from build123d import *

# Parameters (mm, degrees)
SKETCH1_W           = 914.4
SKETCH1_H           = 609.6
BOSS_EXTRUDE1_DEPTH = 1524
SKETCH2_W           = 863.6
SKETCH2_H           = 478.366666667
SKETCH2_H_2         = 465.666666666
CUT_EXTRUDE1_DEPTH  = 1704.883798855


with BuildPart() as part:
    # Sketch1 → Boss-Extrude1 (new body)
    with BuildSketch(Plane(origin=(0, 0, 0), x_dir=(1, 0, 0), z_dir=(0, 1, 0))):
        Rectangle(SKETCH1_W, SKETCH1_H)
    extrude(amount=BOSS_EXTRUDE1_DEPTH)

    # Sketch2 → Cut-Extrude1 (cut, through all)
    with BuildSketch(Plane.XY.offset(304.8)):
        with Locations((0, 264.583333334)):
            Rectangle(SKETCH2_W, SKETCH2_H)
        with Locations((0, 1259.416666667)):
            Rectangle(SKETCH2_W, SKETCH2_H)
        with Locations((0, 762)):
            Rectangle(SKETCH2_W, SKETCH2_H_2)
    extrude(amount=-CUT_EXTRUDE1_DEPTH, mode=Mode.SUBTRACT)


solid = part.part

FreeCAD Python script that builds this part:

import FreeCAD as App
import Part
import Sketcher
Q = App.Units.Quantity

doc = App.newDocument("Part")
body = doc.addObject("PartDesign::Body", "Body")

# Sketch on XZ plane
sketch1 = body.newObject("Sketcher::SketchObject", "Sketch")
sketch1.AttachmentSupport = (doc.getObject("XZ_Plane"), [""])
sketch1.MapMode = "FlatFace"
sketch1.addGeometry([
    Part.LineSegment(App.Vector(-457, -305, 0), App.Vector(-457, 305, 0)),
    Part.LineSegment(App.Vector(-457, 305, 0), App.Vector(457, 305, 0)),
    Part.LineSegment(App.Vector(457, 305, 0), App.Vector(457, -305, 0)),
    Part.LineSegment(App.Vector(457, -305, 0), App.Vector(-457, -305, 0)),
], False)
sketch1.addConstraint([
    Sketcher.Constraint("Coincident", 0, 2, 1, 1),
    Sketcher.Constraint("Coincident", 1, 2, 2, 1),
    Sketcher.Constraint("Coincident", 2, 2, 3, 1),
    Sketcher.Constraint("Coincident", 3, 2, 0, 1),
    Sketcher.Constraint("Vertical", 0),
    Sketcher.Constraint("Horizontal", 1),
    Sketcher.Constraint("Vertical", 2),
    Sketcher.Constraint("Horizontal", 3),
    Sketcher.Constraint("Symmetric", 0, 2, 2, 2, -1, 1),
    Sketcher.Constraint("DistanceX", 1, 1, 1, 2, Q("36 in")),
    Sketcher.Constraint("DistanceY", 0, 1, 0, 2, Q("24 in")),
])
pad1 = body.newObject("PartDesign::Pad", "Pad")
pad1.Profile = sketch1
pad1.Length = Q("60 in")
pad1.Reversed = True

# Sketch on XY plane
sketch2 = body.newObject("Sketcher::SketchObject", "Sketch001")
sketch2.AttachmentSupport = (doc.getObject("XY_Plane"), [""])
sketch2.MapMode = "FlatFace"
sketch2.AttachmentOffset = App.Placement(App.Vector(0, 0, 12 * 25.4), App.Rotation())
sketch2.addGeometry([
    Part.LineSegment(App.Vector(-432, 504, 0), App.Vector(-432, 25, 0)),  # 0
    Part.LineSegment(App.Vector(-432, 25, 0), App.Vector(432, 25, 0)),  # 1
    Part.LineSegment(App.Vector(432, 25, 0), App.Vector(432, 504, 0)),  # 2
    Part.LineSegment(App.Vector(432, 504, 0), App.Vector(-432, 504, 0)),  # 3
    Part.LineSegment(App.Vector(-432, 1499, 0), App.Vector(-432, 1020, 0)),  # 4
    Part.LineSegment(App.Vector(-432, 1020, 0), App.Vector(432, 1020, 0)),  # 5
    Part.LineSegment(App.Vector(432, 1020, 0), App.Vector(432, 1499, 0)),  # 6
    Part.LineSegment(App.Vector(432, 1499, 0), App.Vector(-432, 1499, 0)),  # 7
    Part.LineSegment(App.Vector(-432, 995, 0), App.Vector(-432, 529, 0)),  # 8
    Part.LineSegment(App.Vector(-432, 529, 0), App.Vector(432, 529, 0)),  # 9
    Part.LineSegment(App.Vector(432, 529, 0), App.Vector(432, 995, 0)),  # 10
    Part.LineSegment(App.Vector(432, 995, 0), App.Vector(-432, 995, 0)),  # 11
], False)
sketch2.addConstraint([
    Sketcher.Constraint("Coincident", 0, 2, 1, 1),
    Sketcher.Constraint("Coincident", 1, 2, 2, 1),
    Sketcher.Constraint("Coincident", 2, 2, 3, 1),
    Sketcher.Constraint("Coincident", 3, 2, 0, 1),
    Sketcher.Constraint("Coincident", 4, 2, 5, 1),
    Sketcher.Constraint("Coincident", 5, 2, 6, 1),
    Sketcher.Constraint("Coincident", 6, 2, 7, 1),
    Sketcher.Constraint("Coincident", 7, 2, 4, 1),
    Sketcher.Constraint("Coincident", 8, 2, 9, 1),
    Sketcher.Constraint("Coincident", 9, 2, 10, 1),
    Sketcher.Constraint("Coincident", 10, 2, 11, 1),
    Sketcher.Constraint("Coincident", 11, 2, 8, 1),
    Sketcher.Constraint("Vertical", 0),
    Sketcher.Constraint("Horizontal", 1),
    Sketcher.Constraint("Vertical", 2),
    Sketcher.Constraint("Horizontal", 3),
    Sketcher.Constraint("Vertical", 4),
    Sketcher.Constraint("Horizontal", 5),
    Sketcher.Constraint("Vertical", 6),
    Sketcher.Constraint("Horizontal", 7),
    Sketcher.Constraint("Vertical", 8),
    Sketcher.Constraint("Horizontal", 9),
    Sketcher.Constraint("Vertical", 10),
    Sketcher.Constraint("Horizontal", 11),
    Sketcher.Constraint("Vertical", 3, 2, 4, 2),
    Sketcher.Constraint("Vertical", 2, 2, 5, 2),
    Sketcher.Constraint("Vertical", 7, 2, 8, 2),
    Sketcher.Constraint("Vertical", 6, 2, 9, 2),
    Sketcher.Constraint("Equal", 2, 4),
    Sketcher.Constraint("DistanceX", 1, 1, 1, 2, Q("34 in")),
    Sketcher.Constraint("DistanceX", 0, 2, -1, 1, Q("17 in")),
    Sketcher.Constraint("DistanceY", -1, 1, 0, 2, Q("1 in")),
    Sketcher.Constraint("DistanceY", -1, 1, 6, 2, Q("59 in")),
    Sketcher.Constraint("DistanceY", 3, 2, 8, 2, Q("1 in")),
    Sketcher.Constraint("DistanceY", 10, 2, 5, 2, Q("1 in")),
    Sketcher.Constraint("DistanceY", 0, 2, 0, 1, 478.366667),
])
pocket1 = body.newObject("PartDesign::Pocket", "Pocket")
pocket1.Profile = sketch2
pocket1.Type = "ThroughAll"

doc.recompute()
